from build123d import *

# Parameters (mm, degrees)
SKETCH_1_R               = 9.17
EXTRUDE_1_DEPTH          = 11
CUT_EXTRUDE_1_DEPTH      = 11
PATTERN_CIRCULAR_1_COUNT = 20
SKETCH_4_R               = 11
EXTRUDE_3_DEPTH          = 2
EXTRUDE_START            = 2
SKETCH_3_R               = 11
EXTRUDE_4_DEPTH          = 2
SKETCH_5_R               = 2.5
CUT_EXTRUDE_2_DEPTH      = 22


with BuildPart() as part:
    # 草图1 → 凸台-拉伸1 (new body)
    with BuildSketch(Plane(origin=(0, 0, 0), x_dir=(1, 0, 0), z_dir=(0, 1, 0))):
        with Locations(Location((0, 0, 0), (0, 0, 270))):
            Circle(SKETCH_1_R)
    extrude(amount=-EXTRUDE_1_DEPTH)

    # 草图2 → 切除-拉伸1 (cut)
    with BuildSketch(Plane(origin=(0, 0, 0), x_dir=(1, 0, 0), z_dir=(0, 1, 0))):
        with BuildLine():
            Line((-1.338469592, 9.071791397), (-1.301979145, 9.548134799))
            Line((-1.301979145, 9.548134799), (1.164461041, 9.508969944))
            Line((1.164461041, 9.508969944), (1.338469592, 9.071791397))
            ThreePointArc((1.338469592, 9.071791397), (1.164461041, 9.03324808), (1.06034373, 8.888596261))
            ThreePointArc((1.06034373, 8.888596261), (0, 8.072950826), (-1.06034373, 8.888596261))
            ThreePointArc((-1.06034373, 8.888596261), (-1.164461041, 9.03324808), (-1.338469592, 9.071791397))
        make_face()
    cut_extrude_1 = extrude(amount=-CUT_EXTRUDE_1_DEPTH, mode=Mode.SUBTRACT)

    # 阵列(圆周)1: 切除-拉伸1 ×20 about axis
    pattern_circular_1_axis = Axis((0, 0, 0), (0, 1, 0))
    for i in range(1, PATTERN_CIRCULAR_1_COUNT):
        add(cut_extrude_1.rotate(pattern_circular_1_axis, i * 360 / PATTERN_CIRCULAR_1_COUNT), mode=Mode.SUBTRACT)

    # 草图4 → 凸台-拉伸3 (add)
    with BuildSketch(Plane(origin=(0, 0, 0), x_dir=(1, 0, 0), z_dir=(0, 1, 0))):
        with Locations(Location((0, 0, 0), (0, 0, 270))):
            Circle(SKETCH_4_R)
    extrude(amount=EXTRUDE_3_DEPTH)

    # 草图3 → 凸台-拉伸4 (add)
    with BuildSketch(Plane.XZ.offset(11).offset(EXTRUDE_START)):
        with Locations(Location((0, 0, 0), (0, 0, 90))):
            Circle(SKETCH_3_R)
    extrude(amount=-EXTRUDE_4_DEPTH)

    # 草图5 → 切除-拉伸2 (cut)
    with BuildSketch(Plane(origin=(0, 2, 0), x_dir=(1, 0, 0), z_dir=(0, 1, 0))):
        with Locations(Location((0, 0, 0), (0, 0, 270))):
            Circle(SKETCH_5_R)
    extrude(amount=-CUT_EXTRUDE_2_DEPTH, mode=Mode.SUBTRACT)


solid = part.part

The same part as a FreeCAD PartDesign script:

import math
import FreeCAD as App
import Part
import Sketcher
from FreeCAD import Vector

doc = App.newDocument("Part")
body = doc.addObject("PartDesign::Body", "Body")

sketch1 = body.newObject("Sketcher::SketchObject", "Sketch")
sketch1.AttachmentSupport = (doc.getObject("XZ_Plane"), [""])
sketch1.MapMode = "FlatFace"
sketch1.addGeometry(Part.Circle(Vector(0, 0, 0), Vector(0, 0, 1), 9), False)
sketch1.addConstraint([
    Sketcher.Constraint("Coincident", 0, 3, -1, 1),
    Sketcher.Constraint("Diameter", 0, 18.34),
])
pad1 = body.newObject("PartDesign::Pad", "Pad")
pad1.Profile = sketch1
pad1.Length = 11

sketch2 = body.newObject("Sketcher::SketchObject", "Sketch001")
sketch2.AttachmentSupport = (doc.getObject("XZ_Plane"), [""])
sketch2.MapMode = "FlatFace"
sketch2.addGeometry([
    Part.LineSegment(Vector(-1.3, -9.55, 0), Vector(-1.34, -9.07, 0)),
    Part.ArcOfCircle(Part.Circle(Vector(-1.3, -8.82, 0), Vector(0, 0, 1), 0.25), math.radians(-98), math.radians(-15)),
    Part.ArcOfCircle(Part.Circle(Vector(0, -9.17, 0), Vector(0, 0, 1), 1.1), math.radians(15), math.radians(165)),
    Part.ArcOfCircle(Part.Circle(Vector(1.3, -8.82, 0), Vector(0, 0, 1), 0.25), math.radians(-165), math.radians(-82)),
    Part.LineSegment(Vector(1.34, -9.07, 0), Vector(1.16, -9.51, 0)),
    Part.LineSegment(Vector(1.16, -9.51, 0), Vector(-1.3, -9.55, 0)),
], False)
sketch2.addConstraint([
    Sketcher.Constraint("Coincident", 0, 2, 1, 1),
    Sketcher.Constraint("Tangent", 1, 2, 2, 2),
    Sketcher.Constraint("Tangent", 2, 1, 3, 1),
    Sketcher.Constraint("Coincident", 3, 2, 4, 1),
    Sketcher.Constraint("Coincident", 4, 2, 5, 1),
    Sketcher.Constraint("Coincident", 5, 2, 0, 1),
    Sketcher.Constraint("Equal", 1, 3),
    Sketcher.Constraint("Symmetric", 1, 3, 3, 3, -2),
    Sketcher.Constraint("Horizontal", 0, 2, 3, 2),
    Sketcher.Constraint("Vertical", 1, 3, 5, 2),
    Sketcher.Constraint("Radius", 1, 0.25),
    Sketcher.Constraint("DistanceY", 2, 3, -1, 1, 9.17),
    Sketcher.Constraint("Radius", 2, 1.097049),
    Sketcher.Constraint("DistanceY", 4, 2, 3, 3, 0.684501),
    Sketcher.Constraint("Distance", 0, 0.477739),
    Sketcher.Constraint("Distance", 5, 2.466751),
    Sketcher.Constraint("DistanceX", 1, 3, -1, 1, 1.301979),
    Sketcher.Constraint("DistanceX", 0, 2, -1, 1, 1.33847),
])
pocket1 = body.newObject("PartDesign::Pocket", "Pocket")
pocket1.Profile = sketch2
pocket1.Length = 11
pocket1.Reversed = True
doc.recompute()

polarpattern = body.newObject("PartDesign::PolarPattern", "PolarPattern")
polarpattern.Originals = [pocket1]
polarpattern.Axis = (doc.getObject("Y_Axis"), [""])
polarpattern.Angle = 360
polarpattern.Occurrences = 20
body.Tip = polarpattern

sketch3 = body.newObject("Sketcher::SketchObject", "Sketch002")
sketch3.AttachmentSupport = (doc.getObject("XZ_Plane"), [""])
sketch3.MapMode = "FlatFace"
sketch3.addGeometry(Part.Circle(Vector(0, 0, 0), Vector(0, 0, 1), 11), False)
sketch3.addConstraint([
    Sketcher.Constraint("Coincident", 0, 3, -1, 1),
    Sketcher.Constraint("Diameter", 0, 22.0),
])
pad2 = body.newObject("PartDesign::Pad", "Pad001")
pad2.Profile = sketch3
pad2.Length = 2
pad2.Reversed = True

sketch4 = body.newObject("Sketcher::SketchObject", "Sketch003")
sketch4.AttachmentSupport = (doc.getObject("XZ_Plane"), [""])
sketch4.MapMode = "FlatFace"
sketch4.AttachmentOffset = App.Placement(Vector(0, 0, 13), App.Rotation())
sketch4.addGeometry(Part.Circle(Vector(0, 0, 0), Vector(0, 0, 1), 11), False)
sketch4.addConstraint([
    Sketcher.Constraint("Coincident", 0, 3, -1, 1),
    Sketcher.Constraint("Diameter", 0, 22.0),
])
pad3 = body.newObject("PartDesign::Pad", "Pad002")
pad3.Profile = sketch4
pad3.Length = 2
pad3.Reversed = True

sketch5 = body.newObject("Sketcher::SketchObject", "Sketch004")
sketch5.AttachmentSupport = (doc.getObject("XZ_Plane"), [""])
sketch5.MapMode = "FlatFace"
sketch5.AttachmentOffset = App.Placement(Vector(0, 0, -2), App.Rotation())
sketch5.addGeometry(Part.Circle(Vector(0, 0, 0), Vector(0, 0, 1), 2.5), False)
sketch5.addConstraint([
    Sketcher.Constraint("Coincident", 0, 3, -1, 1),
    Sketcher.Constraint("Diameter", 0, 5.0),
])
pocket2 = body.newObject("PartDesign::Pocket", "Pocket001")
pocket2.Profile = sketch5
pocket2.Length = 22
pocket2.Reversed = True

doc.recompute()
